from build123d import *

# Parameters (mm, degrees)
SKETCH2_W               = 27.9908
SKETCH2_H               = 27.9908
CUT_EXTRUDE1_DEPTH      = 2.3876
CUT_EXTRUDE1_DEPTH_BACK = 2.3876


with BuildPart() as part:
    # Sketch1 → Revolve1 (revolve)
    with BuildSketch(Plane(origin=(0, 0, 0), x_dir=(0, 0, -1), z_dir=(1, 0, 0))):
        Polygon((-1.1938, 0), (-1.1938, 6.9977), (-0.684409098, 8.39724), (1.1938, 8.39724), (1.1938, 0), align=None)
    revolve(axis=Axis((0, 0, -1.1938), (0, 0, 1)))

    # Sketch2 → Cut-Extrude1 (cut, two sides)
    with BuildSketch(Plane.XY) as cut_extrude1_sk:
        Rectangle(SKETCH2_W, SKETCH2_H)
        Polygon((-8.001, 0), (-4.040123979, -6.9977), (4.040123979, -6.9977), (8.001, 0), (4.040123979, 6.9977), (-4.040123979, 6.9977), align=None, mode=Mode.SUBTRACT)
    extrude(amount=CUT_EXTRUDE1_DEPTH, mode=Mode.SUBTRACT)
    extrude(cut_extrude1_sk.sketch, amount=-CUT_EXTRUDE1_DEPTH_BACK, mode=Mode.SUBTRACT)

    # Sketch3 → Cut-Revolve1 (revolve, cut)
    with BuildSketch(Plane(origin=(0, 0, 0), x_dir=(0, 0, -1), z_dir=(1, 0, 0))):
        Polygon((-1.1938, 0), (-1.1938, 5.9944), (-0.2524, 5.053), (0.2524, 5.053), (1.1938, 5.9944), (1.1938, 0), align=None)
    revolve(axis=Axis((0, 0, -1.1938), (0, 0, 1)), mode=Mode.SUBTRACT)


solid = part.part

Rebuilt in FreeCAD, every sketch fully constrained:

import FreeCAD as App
import Part
import Sketcher
Q = App.Units.Quantity


def add_polygon(sketch, points):
    """Adds a closed chain of lines whose ends are joined by coincident constraints."""
    first, n = sketch.GeometryCount, len(points)
    for a, b in zip(points, points[1:] + points[:1]):
        sketch.addGeometry(Part.LineSegment(App.Vector(*a, 0), App.Vector(*b, 0)), False)
    for i in range(n):
        sketch.addConstraint(Sketcher.Constraint("Coincident", first + i, 2, first + (i + 1) % n, 1))

doc = App.newDocument("Part")
body = doc.addObject("PartDesign::Body", "Body")

sketch1 = body.newObject("Sketcher::SketchObject", "Sketch")
sketch1.AttachmentSupport = (doc.getObject("YZ_Plane"), [""])
sketch1.MapMode = "FlatFace"
add_polygon(sketch1, [(7, 1.2), (0, 1.2), (0, -1.2), (8.4, -1.2), (8.4, 0.7)])
sketch1.addConstraint(Sketcher.Constraint("Horizontal", 0))
sketch1.addConstraint(Sketcher.Constraint("Vertical", 1))
sketch1.addConstraint(Sketcher.Constraint("Horizontal", 2))
sketch1.addConstraint(Sketcher.Constraint("Vertical", 3))
sketch1.addConstraint(Sketcher.Constraint("Symmetric", 0, 2, 1, 2, -1, 1))
sketch1.addConstraint(Sketcher.Constraint("Angle", 4, Q("160 deg")))
sketch1.addConstraint(Sketcher.Constraint("DistanceY", 1, 2, 1, 1, Q("0.094 in")))
sketch1.addConstraint(Sketcher.Constraint("DistanceX", 0, 2, 0, 1, Q("0.2755 in")))
sketch1.addConstraint(Sketcher.Constraint("DistanceX", 2, 1, 2, 2, Q("0.3306 in")))
revolution = body.newObject("PartDesign::Revolution", "Revolution")
revolution.Profile = sketch1
revolution.ReferenceAxis = (sketch1, ["V_Axis"])
revolution.Angle = 360

sketch2 = body.newObject("Sketcher::SketchObject", "Sketch001")
sketch2.AttachmentSupport = (doc.getObject("XY_Plane"), [""])
sketch2.MapMode = "FlatFace"
add_polygon(sketch2, [(-14, 14), (-14, -14), (14, -14), (14, 14)])
add_polygon(sketch2, [(-4, -7), (-8, 0), (-4, 7), (4, 7), (8, 0), (4, -7)])
sketch2.addConstraint(Sketcher.Constraint("Vertical", 0))
sketch2.addConstraint(Sketcher.Constraint("Horizontal", 1))
sketch2.addConstraint(Sketcher.Constraint("Vertical", 2))
sketch2.addConstraint(Sketcher.Constraint("Horizontal", 3))
sketch2.addConstraint(Sketcher.Constraint("Horizontal", 6))
sketch2.addConstraint(Sketcher.Constraint("Horizontal", 9))
sketch2.addConstraint(Sketcher.Constraint("Symmetric", 0, 2, 2, 2, -1, 1))
sketch2.addConstraint(Sketcher.Constraint("Symmetric", 4, 2, 7, 2, -1, 1))
sketch2.addConstraint(Sketcher.Constraint("Symmetric", 5, 2, 8, 2, -1, 1))
sketch2.addConstraint(Sketcher.Constraint("PointOnObject", 4, 2, -1))
sketch2.addConstraint(Sketcher.Constraint("Parallel", 4, 7))
sketch2.addConstraint(Sketcher.Constraint("Vertical", 6, 2, 8, 2))
sketch2.addConstraint(Sketcher.Constraint("Equal", 3, 0))
sketch2.addConstraint(Sketcher.Constraint("DistanceX", 1, 1, 1, 2, Q("1.102 in")))
sketch2.addConstraint(Sketcher.Constraint("DistanceX", 4, 2, 7, 2, Q("0.63 in")))
sketch2.addConstraint(Sketcher.Constraint("DistanceY", 8, 2, 6, 2, Q("0.551 in")))
sketch2.addConstraint(Sketcher.Constraint("DistanceX", 6, 1, 6, 2, Q("8.080248 mm")))
pocket1 = body.newObject("PartDesign::Pocket", "Pocket")
pocket1.Profile = sketch2
pocket1.Type = "ThroughAll"
pocket1.Midplane = True

sketch3 = body.newObject("Sketcher::SketchObject", "Sketch002")
sketch3.AttachmentSupport = (doc.getObject("YZ_Plane"), [""])
sketch3.MapMode = "FlatFace"
add_polygon(sketch3, [(6, 1.2), (0, 1.2), (0, -1.2), (6, -1.2), (5.1, -0.3), (5.1, 0.3)])
sketch3.addConstraint(Sketcher.Constraint("Horizontal", 0))
sketch3.addConstraint(Sketcher.Constraint("Vertical", 1))
sketch3.addConstraint(Sketcher.Constraint("Horizontal", 2))
sketch3.addConstraint(Sketcher.Constraint("Vertical", 4))
sketch3.addConstraint(Sketcher.Constraint("Symmetric", 0, 2, 1, 2, -1, 1))
sketch3.addConstraint(Sketcher.Constraint("Perpendicular", 3, 5))
sketch3.addConstraint(Sketcher.Constraint("Vertical", 2, 2, 5, 2))
sketch3.addConstraint(Sketcher.Constraint("Equal", 3, 5))
sketch3.addConstraint(Sketcher.Constraint("DistanceX", 0, 2, 0, 1, Q("0.236 in")))
sketch3.addConstraint(Sketcher.Constraint("DistanceY", 1, 2, 1, 1, Q("0.094 in")))
sketch3.addConstraint(Sketcher.Constraint("DistanceY", 4, 1, 4, 2, Q("0.5048 mm")))
groove = body.newObject("PartDesign::Groove", "Groove")
groove.Profile = sketch3
groove.ReferenceAxis = (sketch3, ["V_Axis"])
groove.Angle = 360

doc.recompute()
